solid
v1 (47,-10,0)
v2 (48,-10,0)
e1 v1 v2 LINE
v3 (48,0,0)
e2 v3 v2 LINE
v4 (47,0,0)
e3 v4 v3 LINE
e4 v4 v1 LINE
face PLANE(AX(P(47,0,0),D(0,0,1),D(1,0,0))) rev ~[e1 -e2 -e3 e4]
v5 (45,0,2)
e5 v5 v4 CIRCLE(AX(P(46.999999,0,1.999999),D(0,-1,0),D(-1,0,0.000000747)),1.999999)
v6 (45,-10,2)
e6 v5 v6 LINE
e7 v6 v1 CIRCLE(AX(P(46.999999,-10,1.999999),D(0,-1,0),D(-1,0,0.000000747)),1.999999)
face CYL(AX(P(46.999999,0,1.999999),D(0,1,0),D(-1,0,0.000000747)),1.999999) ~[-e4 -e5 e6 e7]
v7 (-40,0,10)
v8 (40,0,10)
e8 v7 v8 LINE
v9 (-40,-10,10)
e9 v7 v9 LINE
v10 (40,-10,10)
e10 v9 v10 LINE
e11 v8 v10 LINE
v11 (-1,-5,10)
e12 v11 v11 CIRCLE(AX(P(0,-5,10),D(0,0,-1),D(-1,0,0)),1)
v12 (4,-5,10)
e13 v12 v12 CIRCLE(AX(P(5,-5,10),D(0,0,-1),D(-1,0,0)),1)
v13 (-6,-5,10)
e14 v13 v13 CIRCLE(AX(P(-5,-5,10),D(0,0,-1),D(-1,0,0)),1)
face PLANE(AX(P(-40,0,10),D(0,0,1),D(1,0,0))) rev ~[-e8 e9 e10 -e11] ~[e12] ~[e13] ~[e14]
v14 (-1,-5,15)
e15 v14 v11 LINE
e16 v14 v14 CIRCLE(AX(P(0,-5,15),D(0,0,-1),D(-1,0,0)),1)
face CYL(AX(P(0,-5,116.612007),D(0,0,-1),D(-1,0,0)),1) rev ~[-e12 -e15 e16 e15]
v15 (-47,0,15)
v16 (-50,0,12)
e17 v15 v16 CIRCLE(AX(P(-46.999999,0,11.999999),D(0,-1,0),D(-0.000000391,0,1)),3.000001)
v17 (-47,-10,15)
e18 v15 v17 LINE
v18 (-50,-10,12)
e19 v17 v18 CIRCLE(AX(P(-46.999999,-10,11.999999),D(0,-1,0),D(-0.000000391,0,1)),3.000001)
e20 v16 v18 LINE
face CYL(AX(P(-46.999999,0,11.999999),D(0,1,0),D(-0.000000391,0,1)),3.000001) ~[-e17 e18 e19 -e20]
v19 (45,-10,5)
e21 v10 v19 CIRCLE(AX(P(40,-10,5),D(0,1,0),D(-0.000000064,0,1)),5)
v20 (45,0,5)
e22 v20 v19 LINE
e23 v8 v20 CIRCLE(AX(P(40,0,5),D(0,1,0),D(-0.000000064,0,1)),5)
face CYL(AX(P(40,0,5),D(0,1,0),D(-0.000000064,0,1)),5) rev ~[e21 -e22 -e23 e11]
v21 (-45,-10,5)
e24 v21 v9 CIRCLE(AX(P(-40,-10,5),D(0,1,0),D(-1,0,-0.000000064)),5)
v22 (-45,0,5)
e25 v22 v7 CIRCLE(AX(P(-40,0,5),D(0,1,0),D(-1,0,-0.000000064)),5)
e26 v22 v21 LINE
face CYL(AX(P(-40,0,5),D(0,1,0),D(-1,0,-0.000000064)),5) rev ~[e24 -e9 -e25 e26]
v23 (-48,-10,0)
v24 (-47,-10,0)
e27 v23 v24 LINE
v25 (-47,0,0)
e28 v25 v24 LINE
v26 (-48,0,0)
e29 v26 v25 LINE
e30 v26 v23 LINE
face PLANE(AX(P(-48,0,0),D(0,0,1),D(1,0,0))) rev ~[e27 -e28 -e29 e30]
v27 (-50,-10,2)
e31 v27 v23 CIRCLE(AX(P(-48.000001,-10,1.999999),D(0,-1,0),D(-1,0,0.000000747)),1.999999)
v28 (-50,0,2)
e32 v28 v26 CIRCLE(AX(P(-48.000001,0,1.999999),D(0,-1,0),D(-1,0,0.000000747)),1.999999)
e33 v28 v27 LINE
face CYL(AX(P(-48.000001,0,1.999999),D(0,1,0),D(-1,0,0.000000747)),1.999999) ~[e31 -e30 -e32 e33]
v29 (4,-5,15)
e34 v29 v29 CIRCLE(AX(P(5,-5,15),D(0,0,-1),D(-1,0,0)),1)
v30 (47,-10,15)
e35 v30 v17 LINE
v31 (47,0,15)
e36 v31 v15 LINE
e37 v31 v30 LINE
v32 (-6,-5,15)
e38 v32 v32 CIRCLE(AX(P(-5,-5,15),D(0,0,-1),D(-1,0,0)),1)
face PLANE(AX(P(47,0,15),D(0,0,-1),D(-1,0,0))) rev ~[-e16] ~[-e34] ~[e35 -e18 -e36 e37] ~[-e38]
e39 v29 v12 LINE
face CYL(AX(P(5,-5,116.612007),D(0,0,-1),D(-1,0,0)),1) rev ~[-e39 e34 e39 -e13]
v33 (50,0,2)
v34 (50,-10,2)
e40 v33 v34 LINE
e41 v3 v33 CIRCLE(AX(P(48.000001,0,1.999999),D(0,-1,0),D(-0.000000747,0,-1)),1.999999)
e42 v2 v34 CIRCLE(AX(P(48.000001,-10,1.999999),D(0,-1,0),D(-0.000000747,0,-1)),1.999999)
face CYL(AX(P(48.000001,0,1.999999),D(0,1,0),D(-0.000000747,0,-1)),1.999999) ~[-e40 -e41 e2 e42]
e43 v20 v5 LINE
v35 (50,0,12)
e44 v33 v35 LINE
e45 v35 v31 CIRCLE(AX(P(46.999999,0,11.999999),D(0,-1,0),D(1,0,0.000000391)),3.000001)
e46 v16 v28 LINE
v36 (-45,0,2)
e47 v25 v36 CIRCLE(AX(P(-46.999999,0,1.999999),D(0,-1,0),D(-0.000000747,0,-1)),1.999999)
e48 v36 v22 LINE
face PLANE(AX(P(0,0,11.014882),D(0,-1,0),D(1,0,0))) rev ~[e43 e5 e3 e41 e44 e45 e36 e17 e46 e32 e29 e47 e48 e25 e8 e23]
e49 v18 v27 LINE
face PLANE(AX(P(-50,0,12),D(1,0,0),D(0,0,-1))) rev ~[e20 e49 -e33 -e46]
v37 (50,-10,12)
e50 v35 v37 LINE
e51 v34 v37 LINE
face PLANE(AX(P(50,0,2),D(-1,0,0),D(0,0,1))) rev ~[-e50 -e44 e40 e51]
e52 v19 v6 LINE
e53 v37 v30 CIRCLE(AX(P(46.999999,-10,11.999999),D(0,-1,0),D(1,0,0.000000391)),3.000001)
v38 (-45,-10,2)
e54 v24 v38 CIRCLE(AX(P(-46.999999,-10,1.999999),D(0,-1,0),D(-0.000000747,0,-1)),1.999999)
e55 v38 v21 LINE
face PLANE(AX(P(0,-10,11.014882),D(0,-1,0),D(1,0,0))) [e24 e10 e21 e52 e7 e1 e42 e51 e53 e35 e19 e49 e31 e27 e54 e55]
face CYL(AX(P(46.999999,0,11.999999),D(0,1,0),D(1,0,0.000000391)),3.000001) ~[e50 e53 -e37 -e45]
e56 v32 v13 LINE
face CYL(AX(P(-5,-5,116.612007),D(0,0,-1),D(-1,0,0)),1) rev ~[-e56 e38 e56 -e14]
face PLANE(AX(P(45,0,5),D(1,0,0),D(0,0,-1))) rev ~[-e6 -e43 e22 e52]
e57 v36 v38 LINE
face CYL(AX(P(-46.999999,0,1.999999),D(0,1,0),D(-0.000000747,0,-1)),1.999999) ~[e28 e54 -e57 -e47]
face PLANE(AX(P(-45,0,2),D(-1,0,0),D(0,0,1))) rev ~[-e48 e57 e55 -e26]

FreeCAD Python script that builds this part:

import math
import FreeCAD as App
import Part
import Sketcher
from FreeCAD import Vector
Q = App.Units.Quantity

doc = App.newDocument("Part")
body = doc.addObject("PartDesign::Body", "Body")

# Sketch on XZ plane
sketch1 = body.newObject("Sketcher::SketchObject", "Sketch")
sketch1.AttachmentSupport = (doc.getObject("XZ_Plane"), [""])
sketch1.MapMode = "FlatFace"
sketch1.addGeometry(Part.ArcOfCircle(Part.Circle(Vector(-48.000001, 1.999999, 0), Vector(0, 0, 1), 1.999999), math.radians(179.999957), math.radians(270.000043)), False)
sketch1.addGeometry(Part.LineSegment(Vector(-48, 0, 0), Vector(-47, 0, 0)), False)
sketch1.addGeometry(Part.ArcOfCircle(Part.Circle(Vector(-46.999999, 1.999999, 0), Vector(0, 0, 1), 1.999999), math.radians(-90.000043), math.radians(0.000043)), False)
sketch1.addGeometry(Part.LineSegment(Vector(-45, 2, 0), Vector(-45, 5, 0)), False)
sketch1.addGeometry(Part.ArcOfCircle(Part.Circle(Vector(-40, 5, 0), Vector(0, 0, 1), 5), math.radians(89.999996), math.radians(180.000004)), False)
sketch1.addGeometry(Part.LineSegment(Vector(-40, 10, 0), Vector(40, 10, 0)), False)
sketch1.addGeometry(Part.ArcOfCircle(Part.Circle(Vector(40, 5, 0), Vector(0, 0, 1), 5), math.radians(-0.000004), math.radians(90.000004)), False)
sketch1.addGeometry(Part.LineSegment(Vector(45, 5, 0), Vector(45, 2, 0)), False)
sketch1.addGeometry(Part.ArcOfCircle(Part.Circle(Vector(46.999999, 1.999999, 0), Vector(0, 0, 1), 1.999999), math.radians(179.999957), math.radians(270.000043)), False)
sketch1.addGeometry(Part.LineSegment(Vector(47, 0, 0), Vector(48, 0, 0)), False)
sketch1.addGeometry(Part.ArcOfCircle(Part.Circle(Vector(48.000001, 1.999999, 0), Vector(0, 0, 1), 1.999999), math.radians(-90.000043), math.radians(0.000043)), False)
sketch1.addGeometry(Part.LineSegment(Vector(50, 2, 0), Vector(50, 12, 0)), False)
sketch1.addGeometry(Part.ArcOfCircle(Part.Circle(Vector(46.999999, 11.999999, 0), Vector(0, 0, 1), 3.000001), math.radians(0.000022), math.radians(89.999978)), False)
sketch1.addGeometry(Part.LineSegment(Vector(47, 15, 0), Vector(-47, 15, 0)), False)
sketch1.addGeometry(Part.ArcOfCircle(Part.Circle(Vector(-46.999999, 11.999999, 0), Vector(0, 0, 1), 3.000001), math.radians(90.000022), math.radians(179.999978)), False)
sketch1.addGeometry(Part.LineSegment(Vector(-50, 12, 0), Vector(-50, 2, 0)), False)
sketch1.addConstraint(Sketcher.Constraint("Tangent", 0, 2, 1, 1))
sketch1.addConstraint(Sketcher.Constraint("Tangent", 1, 2, 2, 1))
sketch1.addConstraint(Sketcher.Constraint("Tangent", 2, 2, 3, 1))
sketch1.addConstraint(Sketcher.Constraint("Tangent", 3, 2, 4, 2))
sketch1.addConstraint(Sketcher.Constraint("Tangent", 4, 1, 5, 1))
sketch1.addConstraint(Sketcher.Constraint("Tangent", 5, 2, 6, 2))
sketch1.addConstraint(Sketcher.Constraint("Tangent", 6, 1, 7, 1))
sketch1.addConstraint(Sketcher.Constraint("Tangent", 7, 2, 8, 1))
sketch1.addConstraint(Sketcher.Constraint("Tangent", 8, 2, 9, 1))
sketch1.addConstraint(Sketcher.Constraint("Tangent", 9, 2, 10, 1))
sketch1.addConstraint(Sketcher.Constraint("Tangent", 10, 2, 11, 1))
sketch1.addConstraint(Sketcher.Constraint("Tangent", 11, 2, 12, 1))
sketch1.addConstraint(Sketcher.Constraint("Tangent", 12, 2, 13, 1))
sketch1.addConstraint(Sketcher.Constraint("Tangent", 13, 2, 14, 1))
sketch1.addConstraint(Sketcher.Constraint("Tangent", 14, 2, 15, 1))
sketch1.addConstraint(Sketcher.Constraint("Tangent", 15, 2, 0, 1))
sketch1.addConstraint(Sketcher.Constraint("Horizontal", 1))
sketch1.addConstraint(Sketcher.Constraint("Vertical", 3))
sketch1.addConstraint(Sketcher.Constraint("Horizontal", 5))
sketch1.addConstraint(Sketcher.Constraint("Vertical", 7))
sketch1.addConstraint(Sketcher.Constraint("Horizontal", 9))
sketch1.addConstraint(Sketcher.Constraint("Vertical", 11))
sketch1.addConstraint(Sketcher.Constraint("Horizontal", 13))
sketch1.addConstraint(Sketcher.Constraint("Vertical", 15))
sketch1.addConstraint(Sketcher.Constraint("Equal", 0, 2))
sketch1.addConstraint(Sketcher.Constraint("Equal", 4, 6))
sketch1.addConstraint(Sketcher.Constraint("Equal", 2, 8))
sketch1.addConstraint(Sketcher.Constraint("Equal", 8, 10))
sketch1.addConstraint(Sketcher.Constraint("Equal", 12, 14))
sketch1.addConstraint(Sketcher.Constraint("Symmetric", 1, 2, 8, 2, -1, 1))
sketch1.addConstraint(Sketcher.Constraint("Symmetric", 0, 3, 10, 3, -2))
sketch1.addConstraint(Sketcher.Constraint("Vertical", 8, 3, 12, 3))
sketch1.addConstraint(Sketcher.Constraint("Radius", 0, Q("1.999999 mm")))
sketch1.addConstraint(Sketcher.Constraint("Radius", 4, Q("5 mm")))
sketch1.addConstraint(Sketcher.Constraint("Radius", 12, Q("3.000001 mm")))
sketch1.addConstraint(Sketcher.Constraint("DistanceX", 5, 1, 5, 2, Q("80 mm")))
sketch1.addConstraint(Sketcher.Constraint("DistanceY", 3, 1, 3, 2, Q("3 mm")))
sketch1.addConstraint(Sketcher.Constraint("DistanceY", 11, 1, 11, 2, Q("10 mm")))
pad1 = body.newObject("PartDesign::Pad", "Pad")
pad1.Profile = sketch1
pad1.Length = 10

# Sketch on XY plane
sketch2 = body.newObject("Sketcher::SketchObject", "Sketch001")
sketch2.AttachmentSupport = (doc.getObject("XY_Plane"), [""])
sketch2.MapMode = "FlatFace"
sketch2.AttachmentOffset = App.Placement(Vector(0, 0, 15), App.Rotation())
sketch2.addGeometry(Part.Circle(Vector(-5, -5, 0), Vector(0, 0, 1), 1), False)
sketch2.addGeometry(Part.Circle(Vector(5, -5, 0), Vector(0, 0, 1), 1), False)
sketch2.addGeometry(Part.Circle(Vector(0, -5, 0), Vector(0, 0, 1), 1), False)
sketch2.addConstraint(Sketcher.Constraint("Equal", 0, 1))
sketch2.addConstraint(Sketcher.Constraint("Equal", 1, 2))
sketch2.addConstraint(Sketcher.Constraint("Symmetric", 0, 3, 1, 3, -2))
sketch2.addConstraint(Sketcher.Constraint("PointOnObject", 2, 3, -2))
sketch2.addConstraint(Sketcher.Constraint("Horizontal", 1, 3, 2, 3))
sketch2.addConstraint(Sketcher.Constraint("Diameter", 0, Q("2 mm")))
sketch2.addConstraint(Sketcher.Constraint("DistanceX", 0, 3, -1, 1, Q("5 mm")))
sketch2.addConstraint(Sketcher.Constraint("DistanceY", 0, 3, -1, 1, Q("5 mm")))
doc.recompute()
hole = body.newObject("PartDesign::Hole", "Hole")
hole.Profile = sketch2
hole.ThreadType = "None"
hole.Diameter = 2
hole.DepthType = "ThroughAll"

doc.recompute()
